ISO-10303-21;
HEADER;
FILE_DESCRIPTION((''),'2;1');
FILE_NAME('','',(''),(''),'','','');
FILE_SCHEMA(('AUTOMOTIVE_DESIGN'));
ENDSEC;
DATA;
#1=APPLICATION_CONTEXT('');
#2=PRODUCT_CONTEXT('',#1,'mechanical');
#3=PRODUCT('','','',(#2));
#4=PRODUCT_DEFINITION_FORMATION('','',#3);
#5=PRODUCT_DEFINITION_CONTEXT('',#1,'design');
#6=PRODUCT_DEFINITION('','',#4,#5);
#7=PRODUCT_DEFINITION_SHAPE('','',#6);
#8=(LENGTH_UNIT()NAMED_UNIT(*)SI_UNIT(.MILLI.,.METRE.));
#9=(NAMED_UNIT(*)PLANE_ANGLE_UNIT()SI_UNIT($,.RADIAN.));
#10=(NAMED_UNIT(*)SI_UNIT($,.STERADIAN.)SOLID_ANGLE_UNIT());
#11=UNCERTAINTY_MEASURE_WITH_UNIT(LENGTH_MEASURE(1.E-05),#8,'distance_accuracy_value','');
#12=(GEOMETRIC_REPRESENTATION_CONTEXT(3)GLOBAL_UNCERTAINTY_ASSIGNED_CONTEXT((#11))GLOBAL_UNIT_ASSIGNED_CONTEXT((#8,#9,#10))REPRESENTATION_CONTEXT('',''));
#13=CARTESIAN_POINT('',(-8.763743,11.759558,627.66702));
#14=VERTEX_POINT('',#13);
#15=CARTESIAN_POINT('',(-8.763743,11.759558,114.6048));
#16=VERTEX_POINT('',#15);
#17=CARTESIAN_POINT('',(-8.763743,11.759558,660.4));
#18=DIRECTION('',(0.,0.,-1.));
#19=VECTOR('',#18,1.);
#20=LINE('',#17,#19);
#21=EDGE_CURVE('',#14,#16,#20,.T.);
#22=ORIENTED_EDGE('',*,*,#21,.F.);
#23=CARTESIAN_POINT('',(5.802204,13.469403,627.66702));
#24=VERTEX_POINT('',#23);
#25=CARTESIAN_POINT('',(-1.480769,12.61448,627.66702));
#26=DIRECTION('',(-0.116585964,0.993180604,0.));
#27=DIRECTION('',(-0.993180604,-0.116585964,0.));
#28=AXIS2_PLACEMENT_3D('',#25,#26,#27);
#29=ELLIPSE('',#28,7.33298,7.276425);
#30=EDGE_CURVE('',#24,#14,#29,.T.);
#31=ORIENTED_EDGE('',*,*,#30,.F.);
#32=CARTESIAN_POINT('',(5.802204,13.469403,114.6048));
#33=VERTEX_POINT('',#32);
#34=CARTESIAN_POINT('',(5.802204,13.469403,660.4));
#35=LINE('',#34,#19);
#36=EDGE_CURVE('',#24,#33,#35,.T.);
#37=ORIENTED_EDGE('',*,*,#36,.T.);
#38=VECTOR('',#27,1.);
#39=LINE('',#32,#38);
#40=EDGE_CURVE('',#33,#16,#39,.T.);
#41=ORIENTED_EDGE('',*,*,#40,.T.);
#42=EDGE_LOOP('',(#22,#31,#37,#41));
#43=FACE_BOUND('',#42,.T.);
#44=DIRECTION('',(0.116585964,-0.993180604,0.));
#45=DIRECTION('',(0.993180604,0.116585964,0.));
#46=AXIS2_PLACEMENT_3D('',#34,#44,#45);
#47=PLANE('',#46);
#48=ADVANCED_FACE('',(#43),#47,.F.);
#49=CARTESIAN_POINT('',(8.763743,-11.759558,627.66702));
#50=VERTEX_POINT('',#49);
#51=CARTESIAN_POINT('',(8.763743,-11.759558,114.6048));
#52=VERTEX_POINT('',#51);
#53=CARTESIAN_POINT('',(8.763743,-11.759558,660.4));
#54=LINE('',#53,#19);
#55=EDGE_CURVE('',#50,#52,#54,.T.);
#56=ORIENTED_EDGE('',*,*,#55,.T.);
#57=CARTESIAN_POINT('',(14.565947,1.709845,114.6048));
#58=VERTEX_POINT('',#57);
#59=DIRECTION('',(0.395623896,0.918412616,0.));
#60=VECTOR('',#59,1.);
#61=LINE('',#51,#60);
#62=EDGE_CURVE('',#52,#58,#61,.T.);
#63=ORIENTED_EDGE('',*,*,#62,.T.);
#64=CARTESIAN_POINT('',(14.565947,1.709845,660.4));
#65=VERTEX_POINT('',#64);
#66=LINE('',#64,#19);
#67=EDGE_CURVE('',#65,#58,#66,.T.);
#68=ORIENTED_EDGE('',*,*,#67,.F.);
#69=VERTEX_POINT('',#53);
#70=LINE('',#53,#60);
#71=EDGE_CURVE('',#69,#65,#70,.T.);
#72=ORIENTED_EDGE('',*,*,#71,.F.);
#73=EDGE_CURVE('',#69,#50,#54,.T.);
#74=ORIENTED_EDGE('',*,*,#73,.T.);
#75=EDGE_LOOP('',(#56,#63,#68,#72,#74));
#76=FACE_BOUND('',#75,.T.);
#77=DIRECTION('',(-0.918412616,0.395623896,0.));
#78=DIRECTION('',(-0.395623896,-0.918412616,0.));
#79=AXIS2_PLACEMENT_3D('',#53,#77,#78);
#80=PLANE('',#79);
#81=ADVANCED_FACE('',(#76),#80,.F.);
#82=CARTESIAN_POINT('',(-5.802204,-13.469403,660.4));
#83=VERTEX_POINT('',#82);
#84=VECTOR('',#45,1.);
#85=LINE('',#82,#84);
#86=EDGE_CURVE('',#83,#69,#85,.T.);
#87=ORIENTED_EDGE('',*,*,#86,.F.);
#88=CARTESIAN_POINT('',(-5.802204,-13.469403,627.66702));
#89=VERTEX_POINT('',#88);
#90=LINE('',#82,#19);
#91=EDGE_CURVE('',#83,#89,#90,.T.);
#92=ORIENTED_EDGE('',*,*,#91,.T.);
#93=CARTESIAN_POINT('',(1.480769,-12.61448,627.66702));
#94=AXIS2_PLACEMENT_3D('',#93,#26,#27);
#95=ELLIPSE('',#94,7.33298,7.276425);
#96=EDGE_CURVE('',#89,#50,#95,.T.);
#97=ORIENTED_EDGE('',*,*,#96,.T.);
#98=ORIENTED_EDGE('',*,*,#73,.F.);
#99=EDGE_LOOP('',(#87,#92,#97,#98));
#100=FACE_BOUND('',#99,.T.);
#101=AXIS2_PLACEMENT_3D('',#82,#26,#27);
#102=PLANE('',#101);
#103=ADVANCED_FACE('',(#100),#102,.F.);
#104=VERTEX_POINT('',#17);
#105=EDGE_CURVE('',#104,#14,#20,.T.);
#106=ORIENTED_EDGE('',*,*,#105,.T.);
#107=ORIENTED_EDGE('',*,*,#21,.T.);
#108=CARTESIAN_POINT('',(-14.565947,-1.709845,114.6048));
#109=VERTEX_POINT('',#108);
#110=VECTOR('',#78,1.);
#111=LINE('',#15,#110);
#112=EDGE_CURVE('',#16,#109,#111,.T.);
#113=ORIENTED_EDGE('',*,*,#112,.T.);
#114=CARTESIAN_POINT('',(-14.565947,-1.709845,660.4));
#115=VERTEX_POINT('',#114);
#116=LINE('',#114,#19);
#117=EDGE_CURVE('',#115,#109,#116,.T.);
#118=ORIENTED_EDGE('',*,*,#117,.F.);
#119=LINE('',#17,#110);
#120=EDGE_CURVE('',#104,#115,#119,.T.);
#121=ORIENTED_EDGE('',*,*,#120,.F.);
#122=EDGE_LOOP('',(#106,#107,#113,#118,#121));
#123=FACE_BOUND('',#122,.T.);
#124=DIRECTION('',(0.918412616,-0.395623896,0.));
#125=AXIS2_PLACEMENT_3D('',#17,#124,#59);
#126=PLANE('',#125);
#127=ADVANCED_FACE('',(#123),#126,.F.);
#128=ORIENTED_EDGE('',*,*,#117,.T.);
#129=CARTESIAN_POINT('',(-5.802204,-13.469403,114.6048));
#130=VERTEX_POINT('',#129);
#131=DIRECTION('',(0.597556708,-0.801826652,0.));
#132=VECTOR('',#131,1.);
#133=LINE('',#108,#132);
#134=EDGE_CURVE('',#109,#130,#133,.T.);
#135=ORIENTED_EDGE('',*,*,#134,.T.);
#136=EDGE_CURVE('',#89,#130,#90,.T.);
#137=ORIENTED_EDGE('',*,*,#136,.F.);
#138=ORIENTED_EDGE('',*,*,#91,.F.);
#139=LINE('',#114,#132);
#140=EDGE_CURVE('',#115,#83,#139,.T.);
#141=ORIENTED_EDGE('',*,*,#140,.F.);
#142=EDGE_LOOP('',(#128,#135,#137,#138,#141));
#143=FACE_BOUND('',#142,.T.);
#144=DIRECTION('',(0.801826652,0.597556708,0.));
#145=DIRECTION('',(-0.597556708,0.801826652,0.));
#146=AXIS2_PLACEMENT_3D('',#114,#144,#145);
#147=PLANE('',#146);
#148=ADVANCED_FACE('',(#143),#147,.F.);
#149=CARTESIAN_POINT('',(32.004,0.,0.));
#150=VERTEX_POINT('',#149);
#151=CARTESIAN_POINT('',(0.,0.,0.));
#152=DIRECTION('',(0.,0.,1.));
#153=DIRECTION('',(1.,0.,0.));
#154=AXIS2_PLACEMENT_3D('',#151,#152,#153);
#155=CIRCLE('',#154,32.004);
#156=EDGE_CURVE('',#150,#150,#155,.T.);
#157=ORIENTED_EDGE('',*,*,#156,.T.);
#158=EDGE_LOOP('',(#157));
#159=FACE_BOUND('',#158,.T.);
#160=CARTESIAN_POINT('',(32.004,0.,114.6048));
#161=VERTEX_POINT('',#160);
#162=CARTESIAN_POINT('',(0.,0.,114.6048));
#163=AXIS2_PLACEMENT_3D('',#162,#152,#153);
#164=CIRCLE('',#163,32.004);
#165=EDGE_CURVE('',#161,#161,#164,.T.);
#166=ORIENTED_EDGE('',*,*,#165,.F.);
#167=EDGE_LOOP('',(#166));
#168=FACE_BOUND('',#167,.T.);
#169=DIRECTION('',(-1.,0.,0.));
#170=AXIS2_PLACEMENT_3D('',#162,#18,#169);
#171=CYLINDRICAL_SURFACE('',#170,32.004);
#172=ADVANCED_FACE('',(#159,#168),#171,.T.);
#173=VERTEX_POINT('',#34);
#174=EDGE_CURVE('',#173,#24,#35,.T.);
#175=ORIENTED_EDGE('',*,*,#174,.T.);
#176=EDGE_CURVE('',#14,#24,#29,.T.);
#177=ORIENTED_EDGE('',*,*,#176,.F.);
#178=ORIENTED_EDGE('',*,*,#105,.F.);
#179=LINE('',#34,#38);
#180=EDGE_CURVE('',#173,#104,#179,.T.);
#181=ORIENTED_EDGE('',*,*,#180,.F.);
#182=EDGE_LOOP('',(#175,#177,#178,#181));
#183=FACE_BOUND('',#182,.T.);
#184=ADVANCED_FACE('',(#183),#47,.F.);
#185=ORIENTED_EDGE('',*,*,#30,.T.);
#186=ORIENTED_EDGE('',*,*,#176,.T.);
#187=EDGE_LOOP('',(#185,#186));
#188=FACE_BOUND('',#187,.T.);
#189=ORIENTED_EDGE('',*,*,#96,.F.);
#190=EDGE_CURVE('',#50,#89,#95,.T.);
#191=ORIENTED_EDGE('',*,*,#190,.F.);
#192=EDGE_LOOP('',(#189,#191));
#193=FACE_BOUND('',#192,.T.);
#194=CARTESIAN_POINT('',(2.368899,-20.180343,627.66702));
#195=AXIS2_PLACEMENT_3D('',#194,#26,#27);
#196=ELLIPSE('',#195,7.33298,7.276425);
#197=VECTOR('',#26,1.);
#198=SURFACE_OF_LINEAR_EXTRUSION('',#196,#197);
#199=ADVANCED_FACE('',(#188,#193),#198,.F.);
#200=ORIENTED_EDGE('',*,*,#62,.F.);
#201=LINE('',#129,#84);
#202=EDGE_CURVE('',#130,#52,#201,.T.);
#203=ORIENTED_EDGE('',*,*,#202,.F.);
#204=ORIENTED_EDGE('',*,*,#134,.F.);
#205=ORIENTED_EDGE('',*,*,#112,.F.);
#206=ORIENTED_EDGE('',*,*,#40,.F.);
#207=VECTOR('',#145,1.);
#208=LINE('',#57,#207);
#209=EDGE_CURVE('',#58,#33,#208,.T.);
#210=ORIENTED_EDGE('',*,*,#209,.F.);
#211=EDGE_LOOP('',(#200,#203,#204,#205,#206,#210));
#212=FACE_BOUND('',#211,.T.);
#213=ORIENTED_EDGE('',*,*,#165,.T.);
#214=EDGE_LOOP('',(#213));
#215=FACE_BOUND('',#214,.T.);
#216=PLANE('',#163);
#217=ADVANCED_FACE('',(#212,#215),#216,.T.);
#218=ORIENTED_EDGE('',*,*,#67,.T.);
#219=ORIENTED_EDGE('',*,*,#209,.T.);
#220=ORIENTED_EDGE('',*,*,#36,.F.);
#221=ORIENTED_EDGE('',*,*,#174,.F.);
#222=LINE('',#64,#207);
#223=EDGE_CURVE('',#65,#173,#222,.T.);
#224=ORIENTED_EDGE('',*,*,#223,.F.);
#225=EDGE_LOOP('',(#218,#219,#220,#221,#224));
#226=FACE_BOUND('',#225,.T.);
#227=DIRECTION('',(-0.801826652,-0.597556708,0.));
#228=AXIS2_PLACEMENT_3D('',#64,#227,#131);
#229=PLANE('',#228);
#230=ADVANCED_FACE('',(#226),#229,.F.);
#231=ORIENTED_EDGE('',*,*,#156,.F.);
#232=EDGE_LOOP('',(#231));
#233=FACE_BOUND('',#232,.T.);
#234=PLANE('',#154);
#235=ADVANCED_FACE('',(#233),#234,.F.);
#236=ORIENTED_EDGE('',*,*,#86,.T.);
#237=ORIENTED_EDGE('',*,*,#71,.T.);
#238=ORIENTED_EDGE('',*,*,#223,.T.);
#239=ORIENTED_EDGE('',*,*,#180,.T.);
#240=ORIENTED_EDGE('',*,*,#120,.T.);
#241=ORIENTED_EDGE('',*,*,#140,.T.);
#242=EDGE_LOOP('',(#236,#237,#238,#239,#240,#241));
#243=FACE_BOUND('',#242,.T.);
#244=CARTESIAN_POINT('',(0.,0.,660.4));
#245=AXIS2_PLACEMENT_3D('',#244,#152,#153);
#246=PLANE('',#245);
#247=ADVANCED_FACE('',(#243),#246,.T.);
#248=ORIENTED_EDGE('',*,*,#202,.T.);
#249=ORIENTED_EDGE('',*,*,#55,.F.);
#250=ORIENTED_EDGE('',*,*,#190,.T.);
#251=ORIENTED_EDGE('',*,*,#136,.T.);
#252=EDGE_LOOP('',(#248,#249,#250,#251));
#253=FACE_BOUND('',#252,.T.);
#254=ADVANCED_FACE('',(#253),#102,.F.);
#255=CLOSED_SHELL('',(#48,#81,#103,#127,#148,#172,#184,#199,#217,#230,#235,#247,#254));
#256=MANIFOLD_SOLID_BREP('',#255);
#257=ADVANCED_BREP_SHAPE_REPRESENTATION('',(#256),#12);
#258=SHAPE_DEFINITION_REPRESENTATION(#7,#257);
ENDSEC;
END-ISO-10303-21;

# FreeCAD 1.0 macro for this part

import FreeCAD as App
import Part
import Sketcher
from FreeCAD import Vector
Q = App.Units.Quantity

doc = App.newDocument("Part")
body = doc.addObject("PartDesign::Body", "Body")

# Sketch on XY plane
sketch1 = body.newObject("Sketcher::SketchObject", "Sketch")
sketch1.AttachmentSupport = (doc.getObject("XY_Plane"), [""])
sketch1.MapMode = "FlatFace"
sketch1.addGeometry([
    Part.LineSegment(Vector(6, 13, 0), Vector(-9, 12, 0)),  # 0
    Part.LineSegment(Vector(-9, 12, 0), Vector(-15, -2, 0)),  # 1
    Part.LineSegment(Vector(-15, -2, 0), Vector(-6, -13, 0)),  # 2
    Part.LineSegment(Vector(-6, -13, 0), Vector(9, -12, 0)),  # 3
    Part.LineSegment(Vector(9, -12, 0), Vector(15, 2, 0)),  # 4
    Part.LineSegment(Vector(15, 2, 0), Vector(6, 13, 0)),  # 5
], False)
sketch1.addConstraint([
    Sketcher.Constraint("Coincident", 0, 2, 1, 1),
    Sketcher.Constraint("Coincident", 1, 2, 2, 1),
    Sketcher.Constraint("Coincident", 2, 2, 3, 1),
    Sketcher.Constraint("Coincident", 3, 2, 4, 1),
    Sketcher.Constraint("Coincident", 4, 2, 5, 1),
    Sketcher.Constraint("Coincident", 5, 2, 0, 1),
    Sketcher.Constraint("Symmetric", 0, 2, 3, 2, -1, 1),
    Sketcher.Constraint("Symmetric", 1, 2, 4, 2, -1, 1),
    Sketcher.Constraint("Symmetric", 2, 2, 5, 2, -1, 1),
    Sketcher.Constraint("Equal", 0, 1),
    Sketcher.Constraint("Equal", 1, 2),
    Sketcher.Constraint("Distance", 0, Q("0.5774 in")),
    Sketcher.Constraint("DistanceX", 0, 2, 2, 2, 2.961539),
    Sketcher.Constraint("DistanceY", 2, 2, 0, 2, 25.22896),
    Sketcher.Constraint("DistanceX", 1, 2, 3, 2, 23.32969),
])
pad1 = body.newObject("PartDesign::Pad", "Pad")
pad1.Profile = sketch1
pad1.Length = Q("26 in")

# Sketch on an angled plane
sketch2 = body.newObject("Sketcher::SketchObject", "Sketch001")
sketch2.Placement = App.Placement(Vector(-1.480769, 12.61448, 0), App.Rotation(Vector(0.993180604, 0.116585964, 0), Vector(0, 0, -0.999999999), Vector(-0.116585964, 0.993180604, 0), "ZXY"))
sketch2.addGeometry(Part.Ellipse(Vector(-7.33298, -627.667019, 0), Vector(0, -634.943444, 0), Vector(0, -627.667019, 0)), False)
sketch2.addConstraint(Sketcher.Constraint("Block", 0))
pocket1 = body.newObject("PartDesign::Pocket", "Pocket")
pocket1.Profile = sketch2
pocket1.Length = Q("1.3 in")

# Sketch on XY plane
sketch3 = body.newObject("Sketcher::SketchObject", "Sketch002")
sketch3.AttachmentSupport = (doc.getObject("XY_Plane"), [""])
sketch3.MapMode = "FlatFace"
sketch3.addGeometry(Part.Circle(Vector(0, 0, 0), Vector(0, 0, 1), 32), False)
sketch3.addConstraint([
    Sketcher.Constraint("Coincident", 0, 3, -1, 1),
    Sketcher.Constraint("Diameter", 0, Q("2.52 in")),
])
pad2 = body.newObject("PartDesign::Pad", "Pad001")
pad2.Profile = sketch3
pad2.Length = Q("4.512 in")

doc.recompute()
